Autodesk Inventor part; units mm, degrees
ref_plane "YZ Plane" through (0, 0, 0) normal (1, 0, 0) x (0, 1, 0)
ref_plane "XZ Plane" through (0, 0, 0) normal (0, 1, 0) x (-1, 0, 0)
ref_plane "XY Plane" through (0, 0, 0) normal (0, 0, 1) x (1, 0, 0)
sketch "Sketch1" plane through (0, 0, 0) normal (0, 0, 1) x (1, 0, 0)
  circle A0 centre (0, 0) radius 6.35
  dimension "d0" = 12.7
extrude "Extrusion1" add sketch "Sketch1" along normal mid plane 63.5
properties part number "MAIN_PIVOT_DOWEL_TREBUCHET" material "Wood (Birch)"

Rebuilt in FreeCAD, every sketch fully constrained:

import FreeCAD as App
import Part
import Sketcher

V = App.Vector
Q = App.Units.Quantity

doc = App.newDocument("Part")
body = doc.addObject("PartDesign::Body", "Body")

# Sketch on XY plane
sketch1 = body.newObject("Sketcher::SketchObject", "Sketch")
sketch1.AttachmentSupport = (doc.getObject("XY_Plane"), [""])
sketch1.MapMode = "FlatFace"
sketch1.addGeometry(Part.Circle(V(0, 0, 0), V(0, 0, 1), 6.35), False)
sketch1.addConstraint([
    Sketcher.Constraint("Coincident", 0, 3, -1, 1),
    Sketcher.Constraint("Diameter", 0, Q("0.5 in")),
])
pad1 = body.newObject("PartDesign::Pad", "Pad")
pad1.Profile = sketch1
pad1.Length = Q("2.5 in")
pad1.Midplane = True

doc.recompute()
